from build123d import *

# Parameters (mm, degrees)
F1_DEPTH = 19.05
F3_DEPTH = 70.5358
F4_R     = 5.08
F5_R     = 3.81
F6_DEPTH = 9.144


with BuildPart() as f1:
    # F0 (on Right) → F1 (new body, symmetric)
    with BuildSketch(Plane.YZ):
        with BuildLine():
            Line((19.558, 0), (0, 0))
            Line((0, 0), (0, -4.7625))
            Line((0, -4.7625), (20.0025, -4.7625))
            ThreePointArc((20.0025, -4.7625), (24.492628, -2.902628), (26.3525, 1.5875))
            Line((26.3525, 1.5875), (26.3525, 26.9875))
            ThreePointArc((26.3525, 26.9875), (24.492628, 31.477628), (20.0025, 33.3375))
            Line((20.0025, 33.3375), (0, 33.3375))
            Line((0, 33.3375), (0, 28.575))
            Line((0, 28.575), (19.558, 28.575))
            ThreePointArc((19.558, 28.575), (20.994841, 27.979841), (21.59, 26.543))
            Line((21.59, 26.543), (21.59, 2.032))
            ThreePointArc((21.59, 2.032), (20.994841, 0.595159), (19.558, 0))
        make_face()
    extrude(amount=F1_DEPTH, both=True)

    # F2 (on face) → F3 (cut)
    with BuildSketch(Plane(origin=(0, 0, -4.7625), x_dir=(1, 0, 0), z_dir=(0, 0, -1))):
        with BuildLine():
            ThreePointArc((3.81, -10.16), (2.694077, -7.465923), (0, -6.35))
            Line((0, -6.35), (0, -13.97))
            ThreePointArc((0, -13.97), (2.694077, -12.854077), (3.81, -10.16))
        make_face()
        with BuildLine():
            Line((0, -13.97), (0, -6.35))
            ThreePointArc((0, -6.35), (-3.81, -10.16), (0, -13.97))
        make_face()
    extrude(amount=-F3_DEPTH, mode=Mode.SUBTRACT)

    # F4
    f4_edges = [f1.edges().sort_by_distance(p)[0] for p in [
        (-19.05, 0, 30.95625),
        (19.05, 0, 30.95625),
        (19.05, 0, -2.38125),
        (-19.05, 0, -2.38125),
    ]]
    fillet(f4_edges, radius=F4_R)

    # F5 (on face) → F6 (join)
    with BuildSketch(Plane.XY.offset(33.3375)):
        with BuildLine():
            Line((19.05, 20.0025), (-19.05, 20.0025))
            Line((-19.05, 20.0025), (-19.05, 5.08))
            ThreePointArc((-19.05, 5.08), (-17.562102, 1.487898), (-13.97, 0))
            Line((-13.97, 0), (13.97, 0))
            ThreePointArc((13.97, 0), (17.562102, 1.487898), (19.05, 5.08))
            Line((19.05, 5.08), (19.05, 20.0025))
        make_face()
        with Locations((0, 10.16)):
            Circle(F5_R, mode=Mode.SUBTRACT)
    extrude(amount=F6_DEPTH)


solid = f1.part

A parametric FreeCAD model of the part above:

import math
import FreeCAD as App
import Part
import Sketcher

V = App.Vector
Q = App.Units.Quantity


def edges_at(feature, points):
    """Names of the edges that pass closest to the given points."""
    edges = feature.Shape.Edges
    near = lambda p: min(range(len(edges)), key=lambda i: edges[i].distToShape(Part.Vertex(*p))[0])
    return sorted({f"Edge{near(p) + 1}" for p in points})

doc = App.newDocument("Part")
params = doc.addObject("Spreadsheet::Sheet", "Params")
for row, (alias, value) in enumerate([
    ("sketch1_height", "1 in"),
    ("sketch1_radius", "0.25 in"),
    ("sketch1_radius2", "0.08 in"),
    ("sketch1_width", "0.77 in"),
    ("sketch1_height2", "0.1875 in"),
    ("pad1_length", "1.5 in"),
    ("sketch2_radius", "0.15 in"),
    ("pocket1_length", "2.777 in"),
    ("fillet_radius", "0.2 in"),
    ("sketch3_diameter", "0.3 in"),
    ("sketch3_radius", "0.2000001 in"),
    ("sketch3_width", "1.5 in"),
    ("pad2_length", "0.36 in"),
], start=1):
    params.set(f"A{row}", alias)
    params.set(f"B{row}", "=" + value)
    params.setAlias(f"B{row}", alias)

body = doc.addObject("PartDesign::Body", "Body")

# Sketch on YZ plane
sketch1 = body.newObject("Sketcher::SketchObject", "Sketch")
sketch1.AttachmentSupport = (doc.getObject("YZ_Plane"), [""])
sketch1.MapMode = "FlatFace"
sketch1.addGeometry([
    Part.LineSegment(V(19.6, 0, 0), V(0, 0, 0)),  # 0
    Part.LineSegment(V(0, 0, 0), V(0, -4.8, 0)),  # 1
    Part.LineSegment(V(0, -4.8, 0), V(20, -4.8, 0)),  # 2
    Part.ArcOfCircle(Part.Circle(V(20, 1.6, 0), V(0, 0, 1), 6.4), math.radians(-90), math.radians(0)),  # 3
    Part.LineSegment(V(26.4, 1.6, 0), V(26.4, 27, 0)),  # 4
    Part.ArcOfCircle(Part.Circle(V(20, 27, 0), V(0, 0, 1), 6.4), math.radians(0), math.radians(90)),  # 5
    Part.LineSegment(V(20, 33.3, 0), V(0, 33.3, 0)),  # 6
    Part.LineSegment(V(0, 33.3, 0), V(0, 28.6, 0)),  # 7
    Part.LineSegment(V(0, 28.6, 0), V(19.6, 28.6, 0)),  # 8
    Part.ArcOfCircle(Part.Circle(V(19.6, 26.5, 0), V(0, 0, 1), 2), math.radians(0), math.radians(90)),  # 9
    Part.LineSegment(V(21.6, 26.5, 0), V(21.6, 2, 0)),  # 10
    Part.ArcOfCircle(Part.Circle(V(19.6, 2, 0), V(0, 0, 1), 2), math.radians(-90), math.radians(0)),  # 11
], False)
sketch1.addConstraint([
    Sketcher.Constraint("Coincident", 0, 2, 1, 1),
    Sketcher.Constraint("Coincident", 1, 2, 2, 1),
    Sketcher.Constraint("Tangent", 2, 2, 3, 1),
    Sketcher.Constraint("Tangent", 3, 2, 4, 1),
    Sketcher.Constraint("Tangent", 4, 2, 5, 1),
    Sketcher.Constraint("Tangent", 5, 2, 6, 1),
    Sketcher.Constraint("Coincident", 6, 2, 7, 1),
    Sketcher.Constraint("Coincident", 7, 2, 8, 1),
    Sketcher.Constraint("Tangent", 8, 2, 9, 2),
    Sketcher.Constraint("Tangent", 9, 1, 10, 1),
    Sketcher.Constraint("Tangent", 10, 2, 11, 2),
    Sketcher.Constraint("Tangent", 11, 1, 0, 1),
    Sketcher.Constraint("Horizontal", 0),
    Sketcher.Constraint("Vertical", 1),
    Sketcher.Constraint("Horizontal", 2),
    Sketcher.Constraint("Vertical", 4),
    Sketcher.Constraint("Horizontal", 6),
    Sketcher.Constraint("Vertical", 7),
    Sketcher.Constraint("Horizontal", 8),
    Sketcher.Constraint("Vertical", 10),
    Sketcher.Constraint("Coincident", 0, 2, -1, 1),
    Sketcher.Constraint("Equal", 3, 5),
    Sketcher.Constraint("Equal", 9, 11),
    Sketcher.Constraint("PointOnObject", 6, 2, -2),
    Sketcher.Constraint("Equal", 1, 7),
    Sketcher.Constraint("DistanceY", 4, 1, 4, 2, Q("1 in")),
    Sketcher.Constraint("Radius", 3, Q("0.25 in")),
    Sketcher.Constraint("Radius", 9, Q("0.08 in")),
    Sketcher.Constraint("DistanceX", 0, 2, 0, 1, Q("0.77 in")),
    Sketcher.Constraint("DistanceY", 1, 2, 1, 1, Q("0.1875 in")),
    Sketcher.Constraint("DistanceX", 2, 1, 2, 2, Q("0.7875 in")),
])
sketch1.setExpression("Constraints[25]", "Params.sketch1_height")
sketch1.setExpression("Constraints[26]", "Params.sketch1_radius")
sketch1.setExpression("Constraints[27]", "Params.sketch1_radius2")
sketch1.setExpression("Constraints[28]", "Params.sketch1_width")
sketch1.setExpression("Constraints[29]", "Params.sketch1_height2")
pad1 = body.newObject("PartDesign::Pad", "Pad")
pad1.Profile = sketch1
pad1.setExpression("Length", "Params.pad1_length")
pad1.Midplane = True

# Sketch on XY plane
sketch2 = body.newObject("Sketcher::SketchObject", "Sketch001")
sketch2.AttachmentSupport = (doc.getObject("XY_Plane"), [""])
sketch2.MapMode = "FlatFace"
sketch2.AttachmentOffset = App.Placement(V(0, 0, -0.1875 * 25.4), App.Rotation())
sketch2.addGeometry([
    Part.ArcOfCircle(Part.Circle(V(0, 10.2, 0), V(0, 0, 1), 3.8), math.radians(-90), math.radians(0)),
    Part.ArcOfCircle(Part.Circle(V(0, 10.2, 0), V(0, 0, 1), 3.8), math.radians(90), math.radians(270)),
    Part.ArcOfCircle(Part.Circle(V(0, 10.2, 0), V(0, 0, 1), 3.8), math.radians(0), math.radians(90)),
], False)
sketch2.addConstraint([
    Sketcher.Constraint("Tangent", 0, 1, 1, 2),
    Sketcher.Constraint("Tangent", 1, 1, 2, 2),
    Sketcher.Constraint("Tangent", 2, 1, 0, 2),
    Sketcher.Constraint("PointOnObject", 0, 3, -2),
    Sketcher.Constraint("PointOnObject", 0, 1, -2),
    Sketcher.Constraint("PointOnObject", 1, 1, -2),
    Sketcher.Constraint("Horizontal", 1, 3, 2, 1),
    Sketcher.Constraint("Radius", 0, Q("0.15 in")),
    Sketcher.Constraint("DistanceY", -1, 1, 0, 3, Q("0.4 in")),
])
sketch2.setExpression("Constraints[7]", "Params.sketch2_radius")
pocket1 = body.newObject("PartDesign::Pocket", "Pocket")
pocket1.Profile = sketch2
pocket1.setExpression("Length", "Params.pocket1_length")
pocket1.Reversed = True
doc.recompute()

fillet = body.newObject("PartDesign::Fillet", "Fillet")
fillet.Base = (pocket1, edges_at(pocket1, [
    (-19.05, 0, 30.956),
    (19.05, 0, 30.956),
    (19.05, 0, -2.381),
    (-19.05, 0, -2.381),
]))
fillet.setExpression("Radius", "Params.fillet_radius")

# Sketch on XY plane
sketch3 = body.newObject("Sketcher::SketchObject", "Sketch002")
sketch3.AttachmentSupport = (doc.getObject("XY_Plane"), [""])
sketch3.MapMode = "FlatFace"
sketch3.AttachmentOffset = App.Placement(V(0, 0, 1.3125 * 25.4), App.Rotation())
sketch3.addGeometry([
    Part.LineSegment(V(19.1, 20, 0), V(-19.1, 20, 0)),  # 0
    Part.LineSegment(V(-19.1, 20, 0), V(-19.1, 5.1, 0)),  # 1
    Part.ArcOfCircle(Part.Circle(V(-14, 5.1, 0), V(0, 0, 1), 5.1), math.radians(-180), math.radians(-90)),  # 2
    Part.LineSegment(V(-14, 0, 0), V(14, 0, 0)),  # 3
    Part.ArcOfCircle(Part.Circle(V(14, 5.1, 0), V(0, 0, 1), 5.1), math.radians(-90), math.radians(0)),  # 4
    Part.LineSegment(V(19.1, 5.1, 0), V(19.1, 20, 0)),  # 5
    Part.Circle(V(0, 10.2, 0), V(0, 0, 1), 3.8),  # 6
], False)
sketch3.addConstraint([
    Sketcher.Constraint("Coincident", 0, 2, 1, 1),
    Sketcher.Constraint("Tangent", 1, 2, 2, 1),
    Sketcher.Constraint("Tangent", 2, 2, 3, 1),
    Sketcher.Constraint("Tangent", 3, 2, 4, 1),
    Sketcher.Constraint("Tangent", 4, 2, 5, 1),
    Sketcher.Constraint("Coincident", 5, 2, 0, 1),
    Sketcher.Constraint("Horizontal", 0),
    Sketcher.Constraint("Vertical", 1),
    Sketcher.Constraint("Horizontal", 3),
    Sketcher.Constraint("Vertical", 5),
    Sketcher.Constraint("Equal", 2, 4),
    Sketcher.Constraint("Symmetric", 2, 2, 3, 2, -1, 1),
    Sketcher.Constraint("PointOnObject", 6, 3, -2),
    Sketcher.Constraint("Diameter", 6, Q("0.3 in")),
    Sketcher.Constraint("Radius", 2, Q("0.2000001 in")),
    Sketcher.Constraint("DistanceX", 0, 2, 0, 1, Q("1.5 in")),
    Sketcher.Constraint("DistanceY", -1, 1, 6, 3, Q("0.4 in")),
    Sketcher.Constraint("DistanceY", 1, 2, 1, 1, Q("0.5875 in")),
])
sketch3.setExpression("Constraints[13]", "Params.sketch3_diameter")
sketch3.setExpression("Constraints[14]", "Params.sketch3_radius")
sketch3.setExpression("Constraints[15]", "Params.sketch3_width")
pad2 = body.newObject("PartDesign::Pad", "Pad001")
pad2.Profile = sketch3
pad2.setExpression("Length", "Params.pad2_length")

doc.recompute()
